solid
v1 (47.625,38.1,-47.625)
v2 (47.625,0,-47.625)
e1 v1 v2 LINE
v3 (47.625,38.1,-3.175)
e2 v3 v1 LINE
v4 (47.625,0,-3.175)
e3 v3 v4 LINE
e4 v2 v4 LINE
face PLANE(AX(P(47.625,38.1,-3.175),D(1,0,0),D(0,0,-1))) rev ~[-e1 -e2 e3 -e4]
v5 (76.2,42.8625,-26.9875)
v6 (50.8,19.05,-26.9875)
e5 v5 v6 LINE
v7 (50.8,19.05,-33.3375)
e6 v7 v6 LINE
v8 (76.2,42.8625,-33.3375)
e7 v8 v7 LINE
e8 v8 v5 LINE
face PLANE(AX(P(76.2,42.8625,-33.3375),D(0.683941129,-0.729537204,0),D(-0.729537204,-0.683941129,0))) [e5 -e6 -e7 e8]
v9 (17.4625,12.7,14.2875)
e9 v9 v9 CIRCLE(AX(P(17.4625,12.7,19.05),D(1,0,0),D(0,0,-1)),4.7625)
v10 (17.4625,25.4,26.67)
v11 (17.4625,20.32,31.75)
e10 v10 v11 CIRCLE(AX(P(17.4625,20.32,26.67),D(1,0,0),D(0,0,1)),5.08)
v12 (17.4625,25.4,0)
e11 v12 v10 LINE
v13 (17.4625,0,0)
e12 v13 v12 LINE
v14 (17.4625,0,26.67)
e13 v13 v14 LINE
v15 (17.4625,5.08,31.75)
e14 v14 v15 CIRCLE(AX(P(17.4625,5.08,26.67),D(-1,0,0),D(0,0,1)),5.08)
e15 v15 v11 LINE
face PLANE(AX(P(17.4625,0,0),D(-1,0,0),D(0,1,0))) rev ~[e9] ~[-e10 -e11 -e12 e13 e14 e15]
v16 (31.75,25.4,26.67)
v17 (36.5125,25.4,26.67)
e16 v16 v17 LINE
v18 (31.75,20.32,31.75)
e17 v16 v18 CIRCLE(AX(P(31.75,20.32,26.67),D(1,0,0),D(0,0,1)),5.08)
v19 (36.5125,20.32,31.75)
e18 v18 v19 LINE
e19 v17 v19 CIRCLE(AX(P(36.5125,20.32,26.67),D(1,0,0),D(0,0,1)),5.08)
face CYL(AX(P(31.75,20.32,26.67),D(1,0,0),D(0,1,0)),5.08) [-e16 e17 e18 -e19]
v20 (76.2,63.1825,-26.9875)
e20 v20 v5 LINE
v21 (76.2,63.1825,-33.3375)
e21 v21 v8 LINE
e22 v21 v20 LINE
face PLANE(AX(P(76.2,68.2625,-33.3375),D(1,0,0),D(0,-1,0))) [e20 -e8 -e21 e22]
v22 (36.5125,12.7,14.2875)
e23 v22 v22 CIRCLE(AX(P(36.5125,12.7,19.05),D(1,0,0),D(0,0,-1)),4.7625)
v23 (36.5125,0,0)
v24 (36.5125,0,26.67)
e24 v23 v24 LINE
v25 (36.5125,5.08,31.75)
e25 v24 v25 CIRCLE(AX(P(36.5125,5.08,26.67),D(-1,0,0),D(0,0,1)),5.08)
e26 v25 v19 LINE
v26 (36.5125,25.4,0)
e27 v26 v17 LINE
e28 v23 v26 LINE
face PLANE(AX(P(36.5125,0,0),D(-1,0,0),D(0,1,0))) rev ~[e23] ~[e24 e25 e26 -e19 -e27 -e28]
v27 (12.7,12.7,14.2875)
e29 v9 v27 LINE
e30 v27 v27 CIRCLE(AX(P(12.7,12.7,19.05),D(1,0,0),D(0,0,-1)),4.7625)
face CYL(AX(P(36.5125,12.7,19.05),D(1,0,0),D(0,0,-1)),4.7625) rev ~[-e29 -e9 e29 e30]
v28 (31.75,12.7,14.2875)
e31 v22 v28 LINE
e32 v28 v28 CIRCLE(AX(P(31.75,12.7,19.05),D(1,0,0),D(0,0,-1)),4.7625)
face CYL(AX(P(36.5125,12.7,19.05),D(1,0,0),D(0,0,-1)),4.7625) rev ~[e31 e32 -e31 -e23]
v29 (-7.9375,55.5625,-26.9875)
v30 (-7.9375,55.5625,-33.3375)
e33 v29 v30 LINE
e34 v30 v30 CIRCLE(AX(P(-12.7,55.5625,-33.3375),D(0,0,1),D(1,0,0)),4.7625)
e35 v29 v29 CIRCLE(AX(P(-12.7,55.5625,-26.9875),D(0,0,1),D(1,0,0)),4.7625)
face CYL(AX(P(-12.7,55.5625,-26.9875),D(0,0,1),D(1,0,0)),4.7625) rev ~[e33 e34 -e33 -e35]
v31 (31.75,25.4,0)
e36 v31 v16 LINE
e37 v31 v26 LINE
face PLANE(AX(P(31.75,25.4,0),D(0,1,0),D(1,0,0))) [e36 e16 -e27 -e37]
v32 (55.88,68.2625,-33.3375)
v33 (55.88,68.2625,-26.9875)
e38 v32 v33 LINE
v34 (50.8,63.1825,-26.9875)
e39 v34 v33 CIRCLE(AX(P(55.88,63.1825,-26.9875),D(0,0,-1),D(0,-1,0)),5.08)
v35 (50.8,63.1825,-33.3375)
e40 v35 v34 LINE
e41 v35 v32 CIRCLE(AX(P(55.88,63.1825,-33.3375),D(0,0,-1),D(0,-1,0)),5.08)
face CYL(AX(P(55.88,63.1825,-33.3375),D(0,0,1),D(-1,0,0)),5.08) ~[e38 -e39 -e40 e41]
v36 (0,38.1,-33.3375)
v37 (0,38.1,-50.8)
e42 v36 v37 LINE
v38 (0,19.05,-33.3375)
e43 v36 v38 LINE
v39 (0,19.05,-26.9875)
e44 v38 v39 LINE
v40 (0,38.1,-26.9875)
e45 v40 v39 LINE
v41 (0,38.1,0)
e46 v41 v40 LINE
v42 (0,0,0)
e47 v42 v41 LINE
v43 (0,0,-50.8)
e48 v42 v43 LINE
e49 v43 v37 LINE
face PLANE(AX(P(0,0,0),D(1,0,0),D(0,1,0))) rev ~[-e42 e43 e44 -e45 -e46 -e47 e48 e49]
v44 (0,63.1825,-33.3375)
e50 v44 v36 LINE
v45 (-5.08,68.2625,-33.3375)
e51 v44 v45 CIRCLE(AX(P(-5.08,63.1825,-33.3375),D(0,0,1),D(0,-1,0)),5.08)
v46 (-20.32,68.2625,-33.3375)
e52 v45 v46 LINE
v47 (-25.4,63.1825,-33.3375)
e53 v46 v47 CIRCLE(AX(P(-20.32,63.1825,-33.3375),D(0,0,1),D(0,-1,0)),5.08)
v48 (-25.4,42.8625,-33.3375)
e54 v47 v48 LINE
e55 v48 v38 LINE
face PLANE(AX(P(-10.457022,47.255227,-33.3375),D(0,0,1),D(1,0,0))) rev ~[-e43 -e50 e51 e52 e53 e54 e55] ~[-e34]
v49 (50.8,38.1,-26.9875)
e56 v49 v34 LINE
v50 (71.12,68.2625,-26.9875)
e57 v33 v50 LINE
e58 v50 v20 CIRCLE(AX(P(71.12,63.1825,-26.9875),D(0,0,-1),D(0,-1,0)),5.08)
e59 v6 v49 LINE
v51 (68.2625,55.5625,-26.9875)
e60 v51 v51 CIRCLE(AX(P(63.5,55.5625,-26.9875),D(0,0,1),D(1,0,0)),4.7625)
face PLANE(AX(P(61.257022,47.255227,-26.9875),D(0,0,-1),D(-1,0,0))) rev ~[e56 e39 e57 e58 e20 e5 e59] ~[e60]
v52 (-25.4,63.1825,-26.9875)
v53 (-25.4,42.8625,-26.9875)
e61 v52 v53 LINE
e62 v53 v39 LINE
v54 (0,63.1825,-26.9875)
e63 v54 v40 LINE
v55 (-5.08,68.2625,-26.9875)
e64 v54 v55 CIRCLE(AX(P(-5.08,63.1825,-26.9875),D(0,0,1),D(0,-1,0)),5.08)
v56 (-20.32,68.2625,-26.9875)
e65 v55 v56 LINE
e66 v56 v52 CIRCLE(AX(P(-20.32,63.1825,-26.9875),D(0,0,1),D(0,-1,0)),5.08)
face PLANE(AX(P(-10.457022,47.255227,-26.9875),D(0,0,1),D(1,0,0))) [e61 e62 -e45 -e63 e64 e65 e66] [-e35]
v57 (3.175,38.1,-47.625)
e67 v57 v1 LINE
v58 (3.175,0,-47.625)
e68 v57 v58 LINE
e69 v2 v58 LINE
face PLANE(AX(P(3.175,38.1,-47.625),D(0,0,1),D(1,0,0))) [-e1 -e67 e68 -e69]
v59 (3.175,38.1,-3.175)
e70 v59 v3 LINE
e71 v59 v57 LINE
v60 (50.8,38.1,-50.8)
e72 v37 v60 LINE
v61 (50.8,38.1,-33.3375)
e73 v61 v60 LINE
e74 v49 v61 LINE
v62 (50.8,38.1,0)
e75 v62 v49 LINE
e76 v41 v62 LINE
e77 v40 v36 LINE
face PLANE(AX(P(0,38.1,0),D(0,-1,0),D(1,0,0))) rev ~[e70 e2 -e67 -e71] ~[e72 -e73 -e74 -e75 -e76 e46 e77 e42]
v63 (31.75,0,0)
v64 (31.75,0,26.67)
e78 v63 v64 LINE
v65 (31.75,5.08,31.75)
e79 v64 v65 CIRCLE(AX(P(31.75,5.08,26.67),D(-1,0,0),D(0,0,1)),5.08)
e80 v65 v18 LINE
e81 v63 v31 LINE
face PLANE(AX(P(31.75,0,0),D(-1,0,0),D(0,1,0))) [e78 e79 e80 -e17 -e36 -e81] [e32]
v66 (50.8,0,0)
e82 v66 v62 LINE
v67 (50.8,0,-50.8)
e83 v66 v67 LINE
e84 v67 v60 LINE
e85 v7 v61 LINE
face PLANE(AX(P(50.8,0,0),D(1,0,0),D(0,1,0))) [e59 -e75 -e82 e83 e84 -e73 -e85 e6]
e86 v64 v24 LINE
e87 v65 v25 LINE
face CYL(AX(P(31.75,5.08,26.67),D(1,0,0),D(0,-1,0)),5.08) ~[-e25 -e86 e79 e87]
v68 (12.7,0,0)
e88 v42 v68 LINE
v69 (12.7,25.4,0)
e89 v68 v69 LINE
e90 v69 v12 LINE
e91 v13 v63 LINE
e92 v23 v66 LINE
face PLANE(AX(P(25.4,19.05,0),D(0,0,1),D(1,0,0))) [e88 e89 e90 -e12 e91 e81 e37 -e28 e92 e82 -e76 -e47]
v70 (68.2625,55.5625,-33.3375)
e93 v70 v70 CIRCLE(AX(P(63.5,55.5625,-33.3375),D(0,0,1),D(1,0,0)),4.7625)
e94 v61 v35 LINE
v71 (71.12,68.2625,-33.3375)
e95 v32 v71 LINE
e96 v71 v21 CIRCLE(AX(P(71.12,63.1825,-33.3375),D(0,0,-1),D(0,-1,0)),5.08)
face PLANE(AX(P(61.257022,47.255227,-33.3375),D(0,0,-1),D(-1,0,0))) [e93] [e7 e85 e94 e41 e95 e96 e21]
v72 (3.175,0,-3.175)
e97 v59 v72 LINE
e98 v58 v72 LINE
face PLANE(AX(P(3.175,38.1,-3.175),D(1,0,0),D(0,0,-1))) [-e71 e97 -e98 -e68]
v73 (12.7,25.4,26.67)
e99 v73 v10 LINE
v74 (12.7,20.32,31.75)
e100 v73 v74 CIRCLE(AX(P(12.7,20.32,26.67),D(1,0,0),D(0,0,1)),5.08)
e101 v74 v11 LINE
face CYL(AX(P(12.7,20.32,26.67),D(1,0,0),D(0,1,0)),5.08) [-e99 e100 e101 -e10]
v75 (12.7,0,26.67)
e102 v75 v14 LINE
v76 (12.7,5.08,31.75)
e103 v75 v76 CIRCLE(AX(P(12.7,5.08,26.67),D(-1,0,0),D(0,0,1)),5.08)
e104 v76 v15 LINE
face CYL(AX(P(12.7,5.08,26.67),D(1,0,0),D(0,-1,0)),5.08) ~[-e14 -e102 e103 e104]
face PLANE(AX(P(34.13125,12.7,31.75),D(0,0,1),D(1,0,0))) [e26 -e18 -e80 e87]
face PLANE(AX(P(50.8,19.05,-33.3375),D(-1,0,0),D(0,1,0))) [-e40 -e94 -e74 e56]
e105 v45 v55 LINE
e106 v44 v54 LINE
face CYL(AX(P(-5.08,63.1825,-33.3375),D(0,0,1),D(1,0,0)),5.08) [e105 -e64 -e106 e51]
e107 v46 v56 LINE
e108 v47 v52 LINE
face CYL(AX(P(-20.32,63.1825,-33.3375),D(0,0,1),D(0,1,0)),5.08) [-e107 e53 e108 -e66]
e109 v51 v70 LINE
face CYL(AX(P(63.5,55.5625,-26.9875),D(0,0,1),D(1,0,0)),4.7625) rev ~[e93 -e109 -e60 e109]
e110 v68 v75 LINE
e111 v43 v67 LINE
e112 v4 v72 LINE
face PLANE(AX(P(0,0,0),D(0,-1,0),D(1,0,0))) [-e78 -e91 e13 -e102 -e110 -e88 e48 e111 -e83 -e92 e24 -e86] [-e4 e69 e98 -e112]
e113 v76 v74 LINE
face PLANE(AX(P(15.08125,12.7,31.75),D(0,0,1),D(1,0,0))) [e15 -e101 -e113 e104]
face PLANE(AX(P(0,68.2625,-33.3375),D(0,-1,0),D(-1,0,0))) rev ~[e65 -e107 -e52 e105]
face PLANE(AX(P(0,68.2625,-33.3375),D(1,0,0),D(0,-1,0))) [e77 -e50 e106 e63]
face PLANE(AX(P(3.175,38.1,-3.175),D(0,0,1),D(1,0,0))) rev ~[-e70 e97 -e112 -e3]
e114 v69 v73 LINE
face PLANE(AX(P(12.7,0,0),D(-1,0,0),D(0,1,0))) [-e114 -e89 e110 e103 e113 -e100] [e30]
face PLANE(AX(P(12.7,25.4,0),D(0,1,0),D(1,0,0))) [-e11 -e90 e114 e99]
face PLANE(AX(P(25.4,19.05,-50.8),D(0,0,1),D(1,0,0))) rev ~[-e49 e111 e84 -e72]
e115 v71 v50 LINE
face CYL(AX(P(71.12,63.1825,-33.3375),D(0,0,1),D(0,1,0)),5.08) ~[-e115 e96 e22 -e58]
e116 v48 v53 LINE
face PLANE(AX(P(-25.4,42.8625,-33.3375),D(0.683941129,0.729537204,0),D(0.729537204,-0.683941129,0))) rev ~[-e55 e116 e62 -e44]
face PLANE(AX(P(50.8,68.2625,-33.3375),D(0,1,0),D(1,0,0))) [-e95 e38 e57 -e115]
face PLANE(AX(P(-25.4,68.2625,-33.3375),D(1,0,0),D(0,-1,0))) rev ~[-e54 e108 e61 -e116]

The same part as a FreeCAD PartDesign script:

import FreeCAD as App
import Part
import Sketcher
from FreeCAD import Vector
Q = App.Units.Quantity


def edges_at(feature, points):
    """Names of the edges that pass closest to the given points."""
    edges = feature.Shape.Edges
    near = lambda p: min(range(len(edges)), key=lambda i: edges[i].distToShape(Part.Vertex(*p))[0])
    return sorted({f"Edge{near(p) + 1}" for p in points})


def add_polygon(sketch, points):
    """Adds a closed chain of lines whose ends are joined by coincident constraints."""
    first, n = sketch.GeometryCount, len(points)
    for a, b in zip(points, points[1:] + points[:1]):
        sketch.addGeometry(Part.LineSegment(App.Vector(*a, 0), App.Vector(*b, 0)), False)
    for i in range(n):
        sketch.addConstraint(Sketcher.Constraint("Coincident", first + i, 2, first + (i + 1) % n, 1))

doc = App.newDocument("Part")
body = doc.addObject("PartDesign::Body", "Body")

sketch1 = body.newObject("Sketcher::SketchObject", "Sketch")
sketch1.AttachmentSupport = (doc.getObject("XY_Plane"), [""])
sketch1.MapMode = "FlatFace"
add_polygon(sketch1, [(0, 38.1), (0, 0), (50.8, 0), (50.8, 38.1)])
sketch1.addConstraint([
    Sketcher.Constraint("Vertical", 0),
    Sketcher.Constraint("Horizontal", 1),
    Sketcher.Constraint("Vertical", 2),
    Sketcher.Constraint("Horizontal", 3),
    Sketcher.Constraint("Coincident", 0, 2, -1, 1),
    Sketcher.Constraint("DistanceX", 1, 1, 1, 2, Q("2 in")),
    Sketcher.Constraint("DistanceY", 0, 2, 0, 1, Q("1.5 in")),
])
pad1 = body.newObject("PartDesign::Pad", "Pad")
pad1.Profile = sketch1
pad1.Length = Q("2 in")
pad1.Reversed = True

sketch2 = body.newObject("Sketcher::SketchObject", "Sketch001")
sketch2.AttachmentSupport = (doc.getObject("XZ_Plane"), [""])
sketch2.MapMode = "FlatFace"
sketch2.AttachmentOffset = App.Placement(Vector(0, 0, -1.5 * 25.4), App.Rotation())
add_polygon(sketch2, [(3.175, -47.625), (3.175, -3.175), (47.625, -3.175), (47.625, -47.625)])
sketch2.addConstraint([
    Sketcher.Constraint("Vertical", 0),
    Sketcher.Constraint("Horizontal", 1),
    Sketcher.Constraint("Vertical", 2),
    Sketcher.Constraint("Horizontal", 3),
    Sketcher.Constraint("Equal", 3, 0),
    Sketcher.Constraint("DistanceX", 1, 1, 1, 2, Q("1.75 in")),
    Sketcher.Constraint("DistanceX", -1, 1, 0, 2, Q("0.125 in")),
    Sketcher.Constraint("DistanceY", 0, 2, -1, 1, Q("0.125 in")),
])
pocket1 = body.newObject("PartDesign::Pocket", "Pocket")
pocket1.Profile = sketch2
pocket1.Type = "ThroughAll"
pocket1.Reversed = True

sketch3 = body.newObject("Sketcher::SketchObject", "Sketch002")
sketch3.AttachmentSupport = (doc.getObject("XY_Plane"), [""])
sketch3.MapMode = "FlatFace"
add_polygon(sketch3, [(12.7, 25.4), (12.7, 0), (17.4625, 0), (17.4625, 25.4)])
add_polygon(sketch3, [(31.75, 25.4), (31.75, 0), (36.5125, 0), (36.5125, 25.4)])
sketch3.addConstraint([
    Sketcher.Constraint("Vertical", 0),
    Sketcher.Constraint("Horizontal", 1),
    Sketcher.Constraint("Vertical", 2),
    Sketcher.Constraint("Horizontal", 3),
    Sketcher.Constraint("Vertical", 4),
    Sketcher.Constraint("Horizontal", 5),
    Sketcher.Constraint("Vertical", 6),
    Sketcher.Constraint("Horizontal", 7),
    Sketcher.Constraint("PointOnObject", 0, 2, -1),
    Sketcher.Constraint("PointOnObject", 4, 2, -1),
    Sketcher.Constraint("Horizontal", 3, 2, 6, 2),
    Sketcher.Constraint("Equal", 3, 5),
    Sketcher.Constraint("DistanceY", 0, 2, 0, 1, Q("1 in")),
    Sketcher.Constraint("DistanceX", -1, 1, 0, 2, Q("0.5 in")),
    Sketcher.Constraint("DistanceX", 1, 1, 1, 2, Q("0.1875 in")),
    Sketcher.Constraint("DistanceX", -1, 1, 4, 2, Q("1.25 in")),
])
pad2 = body.newObject("PartDesign::Pad", "Pad001")
pad2.Profile = sketch3
pad2.Length = Q("1.25 in")
doc.recompute()

fillet = body.newObject("PartDesign::Fillet", "Fillet")
fillet.Base = (pad2, edges_at(pad2, [
    (15.081, 0, 31.75),
    (15.081, 25.4, 31.75),
    (34.131, 0, 31.75),
    (34.131, 25.4, 31.75),
]))
fillet.Radius = Q("0.2 in")

sketch4 = body.newObject("Sketcher::SketchObject", "Sketch003")
sketch4.AttachmentSupport = (doc.getObject("YZ_Plane"), [""])
sketch4.MapMode = "FlatFace"
sketch4.AttachmentOffset = App.Placement(Vector(0, 0, 1.4375 * 25.4), App.Rotation())
sketch4.addGeometry(Part.Circle(Vector(12.7, 19.05, 0), Vector(0, 0, 1), 4.7625), False)
sketch4.addConstraint([
    Sketcher.Constraint("Diameter", 0, Q("0.375 in")),
    Sketcher.Constraint("DistanceX", -1, 1, 0, 3, Q("0.5 in")),
    Sketcher.Constraint("DistanceY", -1, 1, 0, 3, Q("0.75 in")),
])
pocket2 = body.newObject("PartDesign::Pocket", "Pocket001")
pocket2.Profile = sketch4
pocket2.Type = "ThroughAll"

sketch5 = body.newObject("Sketcher::SketchObject", "Sketch004")
sketch5.AttachmentSupport = (doc.getObject("XY_Plane"), [""])
sketch5.MapMode = "FlatFace"
sketch5.AttachmentOffset = App.Placement(Vector(0, 0, -1.3125 * 25.4), App.Rotation())
add_polygon(sketch5, [(0, 68.2625), (0, 19.05), (-25.4, 42.8625), (-25.4, 68.2625)])
add_polygon(sketch5, [(76.2, 42.8625), (50.8, 19.05), (50.8, 68.2625), (76.2, 68.2625)])
sketch5.addConstraint([
    Sketcher.Constraint("Vertical", 0),
    Sketcher.Constraint("Vertical", 2),
    Sketcher.Constraint("Horizontal", 3),
    Sketcher.Constraint("Vertical", 5),
    Sketcher.Constraint("Horizontal", 6),
    Sketcher.Constraint("Vertical", 7),
    Sketcher.Constraint("PointOnObject", 0, 2, -2),
    Sketcher.Constraint("Horizontal", 0, 2, 4, 2),
    Sketcher.Constraint("Horizontal", 3, 2, 5, 2),
    Sketcher.Constraint("Horizontal", 1, 2, 7, 2),
    Sketcher.Constraint("Equal", 3, 6),
    Sketcher.Constraint("Equal", 6, 2),
    Sketcher.Constraint("DistanceX", 3, 1, 3, 2, Q("1 in")),
    Sketcher.Constraint("DistanceX", -1, 1, 4, 2, Q("2 in")),
    Sketcher.Constraint("DistanceY", 0, 2, 0, 1, Q("1.9375 in")),
    Sketcher.Constraint("DistanceY", -1, 1, 0, 2, Q("0.75 in")),
])
pad3 = body.newObject("PartDesign::Pad", "Pad002")
pad3.Profile = sketch5
pad3.Length = Q("0.25 in")

sketch6 = body.newObject("Sketcher::SketchObject", "Sketch005")
sketch6.AttachmentSupport = (doc.getObject("XY_Plane"), [""])
sketch6.MapMode = "FlatFace"
sketch6.AttachmentOffset = App.Placement(Vector(0, 0, -1.0625 * 25.4), App.Rotation())
sketch6.addGeometry([
    Part.Circle(Vector(-12.7, 55.5625, 0), Vector(0, 0, 1), 4.7625),
    Part.Circle(Vector(63.5, 55.5625, 0), Vector(0, 0, 1), 4.7625),
], False)
sketch6.addConstraint([
    Sketcher.Constraint("Equal", 0, 1),
    Sketcher.Constraint("Horizontal", 0, 3, 1, 3),
    Sketcher.Constraint("Diameter", 0, Q("0.375 in")),
    Sketcher.Constraint("DistanceX", 0, 3, 1, 3, Q("3 in")),
    Sketcher.Constraint("DistanceX", 0, 3, -1, 1, Q("0.5 in")),
    Sketcher.Constraint("DistanceY", -1, 1, 0, 3, Q("2.1875 in")),
])
pocket3 = body.newObject("PartDesign::Pocket", "Pocket002")
pocket3.Profile = sketch6
pocket3.Type = "ThroughAll"
doc.recompute()

fillet2 = body.newObject("PartDesign::Fillet", "Fillet001")
fillet2.Base = (pocket3, edges_at(pocket3, [
    (76.2, 68.263, -30.163),
    (50.8, 68.263, -30.163),
    (0, 68.263, -30.163),
    (-25.4, 68.263, -30.163),
]))
fillet2.Radius = Q("0.2 in")

doc.recompute()
